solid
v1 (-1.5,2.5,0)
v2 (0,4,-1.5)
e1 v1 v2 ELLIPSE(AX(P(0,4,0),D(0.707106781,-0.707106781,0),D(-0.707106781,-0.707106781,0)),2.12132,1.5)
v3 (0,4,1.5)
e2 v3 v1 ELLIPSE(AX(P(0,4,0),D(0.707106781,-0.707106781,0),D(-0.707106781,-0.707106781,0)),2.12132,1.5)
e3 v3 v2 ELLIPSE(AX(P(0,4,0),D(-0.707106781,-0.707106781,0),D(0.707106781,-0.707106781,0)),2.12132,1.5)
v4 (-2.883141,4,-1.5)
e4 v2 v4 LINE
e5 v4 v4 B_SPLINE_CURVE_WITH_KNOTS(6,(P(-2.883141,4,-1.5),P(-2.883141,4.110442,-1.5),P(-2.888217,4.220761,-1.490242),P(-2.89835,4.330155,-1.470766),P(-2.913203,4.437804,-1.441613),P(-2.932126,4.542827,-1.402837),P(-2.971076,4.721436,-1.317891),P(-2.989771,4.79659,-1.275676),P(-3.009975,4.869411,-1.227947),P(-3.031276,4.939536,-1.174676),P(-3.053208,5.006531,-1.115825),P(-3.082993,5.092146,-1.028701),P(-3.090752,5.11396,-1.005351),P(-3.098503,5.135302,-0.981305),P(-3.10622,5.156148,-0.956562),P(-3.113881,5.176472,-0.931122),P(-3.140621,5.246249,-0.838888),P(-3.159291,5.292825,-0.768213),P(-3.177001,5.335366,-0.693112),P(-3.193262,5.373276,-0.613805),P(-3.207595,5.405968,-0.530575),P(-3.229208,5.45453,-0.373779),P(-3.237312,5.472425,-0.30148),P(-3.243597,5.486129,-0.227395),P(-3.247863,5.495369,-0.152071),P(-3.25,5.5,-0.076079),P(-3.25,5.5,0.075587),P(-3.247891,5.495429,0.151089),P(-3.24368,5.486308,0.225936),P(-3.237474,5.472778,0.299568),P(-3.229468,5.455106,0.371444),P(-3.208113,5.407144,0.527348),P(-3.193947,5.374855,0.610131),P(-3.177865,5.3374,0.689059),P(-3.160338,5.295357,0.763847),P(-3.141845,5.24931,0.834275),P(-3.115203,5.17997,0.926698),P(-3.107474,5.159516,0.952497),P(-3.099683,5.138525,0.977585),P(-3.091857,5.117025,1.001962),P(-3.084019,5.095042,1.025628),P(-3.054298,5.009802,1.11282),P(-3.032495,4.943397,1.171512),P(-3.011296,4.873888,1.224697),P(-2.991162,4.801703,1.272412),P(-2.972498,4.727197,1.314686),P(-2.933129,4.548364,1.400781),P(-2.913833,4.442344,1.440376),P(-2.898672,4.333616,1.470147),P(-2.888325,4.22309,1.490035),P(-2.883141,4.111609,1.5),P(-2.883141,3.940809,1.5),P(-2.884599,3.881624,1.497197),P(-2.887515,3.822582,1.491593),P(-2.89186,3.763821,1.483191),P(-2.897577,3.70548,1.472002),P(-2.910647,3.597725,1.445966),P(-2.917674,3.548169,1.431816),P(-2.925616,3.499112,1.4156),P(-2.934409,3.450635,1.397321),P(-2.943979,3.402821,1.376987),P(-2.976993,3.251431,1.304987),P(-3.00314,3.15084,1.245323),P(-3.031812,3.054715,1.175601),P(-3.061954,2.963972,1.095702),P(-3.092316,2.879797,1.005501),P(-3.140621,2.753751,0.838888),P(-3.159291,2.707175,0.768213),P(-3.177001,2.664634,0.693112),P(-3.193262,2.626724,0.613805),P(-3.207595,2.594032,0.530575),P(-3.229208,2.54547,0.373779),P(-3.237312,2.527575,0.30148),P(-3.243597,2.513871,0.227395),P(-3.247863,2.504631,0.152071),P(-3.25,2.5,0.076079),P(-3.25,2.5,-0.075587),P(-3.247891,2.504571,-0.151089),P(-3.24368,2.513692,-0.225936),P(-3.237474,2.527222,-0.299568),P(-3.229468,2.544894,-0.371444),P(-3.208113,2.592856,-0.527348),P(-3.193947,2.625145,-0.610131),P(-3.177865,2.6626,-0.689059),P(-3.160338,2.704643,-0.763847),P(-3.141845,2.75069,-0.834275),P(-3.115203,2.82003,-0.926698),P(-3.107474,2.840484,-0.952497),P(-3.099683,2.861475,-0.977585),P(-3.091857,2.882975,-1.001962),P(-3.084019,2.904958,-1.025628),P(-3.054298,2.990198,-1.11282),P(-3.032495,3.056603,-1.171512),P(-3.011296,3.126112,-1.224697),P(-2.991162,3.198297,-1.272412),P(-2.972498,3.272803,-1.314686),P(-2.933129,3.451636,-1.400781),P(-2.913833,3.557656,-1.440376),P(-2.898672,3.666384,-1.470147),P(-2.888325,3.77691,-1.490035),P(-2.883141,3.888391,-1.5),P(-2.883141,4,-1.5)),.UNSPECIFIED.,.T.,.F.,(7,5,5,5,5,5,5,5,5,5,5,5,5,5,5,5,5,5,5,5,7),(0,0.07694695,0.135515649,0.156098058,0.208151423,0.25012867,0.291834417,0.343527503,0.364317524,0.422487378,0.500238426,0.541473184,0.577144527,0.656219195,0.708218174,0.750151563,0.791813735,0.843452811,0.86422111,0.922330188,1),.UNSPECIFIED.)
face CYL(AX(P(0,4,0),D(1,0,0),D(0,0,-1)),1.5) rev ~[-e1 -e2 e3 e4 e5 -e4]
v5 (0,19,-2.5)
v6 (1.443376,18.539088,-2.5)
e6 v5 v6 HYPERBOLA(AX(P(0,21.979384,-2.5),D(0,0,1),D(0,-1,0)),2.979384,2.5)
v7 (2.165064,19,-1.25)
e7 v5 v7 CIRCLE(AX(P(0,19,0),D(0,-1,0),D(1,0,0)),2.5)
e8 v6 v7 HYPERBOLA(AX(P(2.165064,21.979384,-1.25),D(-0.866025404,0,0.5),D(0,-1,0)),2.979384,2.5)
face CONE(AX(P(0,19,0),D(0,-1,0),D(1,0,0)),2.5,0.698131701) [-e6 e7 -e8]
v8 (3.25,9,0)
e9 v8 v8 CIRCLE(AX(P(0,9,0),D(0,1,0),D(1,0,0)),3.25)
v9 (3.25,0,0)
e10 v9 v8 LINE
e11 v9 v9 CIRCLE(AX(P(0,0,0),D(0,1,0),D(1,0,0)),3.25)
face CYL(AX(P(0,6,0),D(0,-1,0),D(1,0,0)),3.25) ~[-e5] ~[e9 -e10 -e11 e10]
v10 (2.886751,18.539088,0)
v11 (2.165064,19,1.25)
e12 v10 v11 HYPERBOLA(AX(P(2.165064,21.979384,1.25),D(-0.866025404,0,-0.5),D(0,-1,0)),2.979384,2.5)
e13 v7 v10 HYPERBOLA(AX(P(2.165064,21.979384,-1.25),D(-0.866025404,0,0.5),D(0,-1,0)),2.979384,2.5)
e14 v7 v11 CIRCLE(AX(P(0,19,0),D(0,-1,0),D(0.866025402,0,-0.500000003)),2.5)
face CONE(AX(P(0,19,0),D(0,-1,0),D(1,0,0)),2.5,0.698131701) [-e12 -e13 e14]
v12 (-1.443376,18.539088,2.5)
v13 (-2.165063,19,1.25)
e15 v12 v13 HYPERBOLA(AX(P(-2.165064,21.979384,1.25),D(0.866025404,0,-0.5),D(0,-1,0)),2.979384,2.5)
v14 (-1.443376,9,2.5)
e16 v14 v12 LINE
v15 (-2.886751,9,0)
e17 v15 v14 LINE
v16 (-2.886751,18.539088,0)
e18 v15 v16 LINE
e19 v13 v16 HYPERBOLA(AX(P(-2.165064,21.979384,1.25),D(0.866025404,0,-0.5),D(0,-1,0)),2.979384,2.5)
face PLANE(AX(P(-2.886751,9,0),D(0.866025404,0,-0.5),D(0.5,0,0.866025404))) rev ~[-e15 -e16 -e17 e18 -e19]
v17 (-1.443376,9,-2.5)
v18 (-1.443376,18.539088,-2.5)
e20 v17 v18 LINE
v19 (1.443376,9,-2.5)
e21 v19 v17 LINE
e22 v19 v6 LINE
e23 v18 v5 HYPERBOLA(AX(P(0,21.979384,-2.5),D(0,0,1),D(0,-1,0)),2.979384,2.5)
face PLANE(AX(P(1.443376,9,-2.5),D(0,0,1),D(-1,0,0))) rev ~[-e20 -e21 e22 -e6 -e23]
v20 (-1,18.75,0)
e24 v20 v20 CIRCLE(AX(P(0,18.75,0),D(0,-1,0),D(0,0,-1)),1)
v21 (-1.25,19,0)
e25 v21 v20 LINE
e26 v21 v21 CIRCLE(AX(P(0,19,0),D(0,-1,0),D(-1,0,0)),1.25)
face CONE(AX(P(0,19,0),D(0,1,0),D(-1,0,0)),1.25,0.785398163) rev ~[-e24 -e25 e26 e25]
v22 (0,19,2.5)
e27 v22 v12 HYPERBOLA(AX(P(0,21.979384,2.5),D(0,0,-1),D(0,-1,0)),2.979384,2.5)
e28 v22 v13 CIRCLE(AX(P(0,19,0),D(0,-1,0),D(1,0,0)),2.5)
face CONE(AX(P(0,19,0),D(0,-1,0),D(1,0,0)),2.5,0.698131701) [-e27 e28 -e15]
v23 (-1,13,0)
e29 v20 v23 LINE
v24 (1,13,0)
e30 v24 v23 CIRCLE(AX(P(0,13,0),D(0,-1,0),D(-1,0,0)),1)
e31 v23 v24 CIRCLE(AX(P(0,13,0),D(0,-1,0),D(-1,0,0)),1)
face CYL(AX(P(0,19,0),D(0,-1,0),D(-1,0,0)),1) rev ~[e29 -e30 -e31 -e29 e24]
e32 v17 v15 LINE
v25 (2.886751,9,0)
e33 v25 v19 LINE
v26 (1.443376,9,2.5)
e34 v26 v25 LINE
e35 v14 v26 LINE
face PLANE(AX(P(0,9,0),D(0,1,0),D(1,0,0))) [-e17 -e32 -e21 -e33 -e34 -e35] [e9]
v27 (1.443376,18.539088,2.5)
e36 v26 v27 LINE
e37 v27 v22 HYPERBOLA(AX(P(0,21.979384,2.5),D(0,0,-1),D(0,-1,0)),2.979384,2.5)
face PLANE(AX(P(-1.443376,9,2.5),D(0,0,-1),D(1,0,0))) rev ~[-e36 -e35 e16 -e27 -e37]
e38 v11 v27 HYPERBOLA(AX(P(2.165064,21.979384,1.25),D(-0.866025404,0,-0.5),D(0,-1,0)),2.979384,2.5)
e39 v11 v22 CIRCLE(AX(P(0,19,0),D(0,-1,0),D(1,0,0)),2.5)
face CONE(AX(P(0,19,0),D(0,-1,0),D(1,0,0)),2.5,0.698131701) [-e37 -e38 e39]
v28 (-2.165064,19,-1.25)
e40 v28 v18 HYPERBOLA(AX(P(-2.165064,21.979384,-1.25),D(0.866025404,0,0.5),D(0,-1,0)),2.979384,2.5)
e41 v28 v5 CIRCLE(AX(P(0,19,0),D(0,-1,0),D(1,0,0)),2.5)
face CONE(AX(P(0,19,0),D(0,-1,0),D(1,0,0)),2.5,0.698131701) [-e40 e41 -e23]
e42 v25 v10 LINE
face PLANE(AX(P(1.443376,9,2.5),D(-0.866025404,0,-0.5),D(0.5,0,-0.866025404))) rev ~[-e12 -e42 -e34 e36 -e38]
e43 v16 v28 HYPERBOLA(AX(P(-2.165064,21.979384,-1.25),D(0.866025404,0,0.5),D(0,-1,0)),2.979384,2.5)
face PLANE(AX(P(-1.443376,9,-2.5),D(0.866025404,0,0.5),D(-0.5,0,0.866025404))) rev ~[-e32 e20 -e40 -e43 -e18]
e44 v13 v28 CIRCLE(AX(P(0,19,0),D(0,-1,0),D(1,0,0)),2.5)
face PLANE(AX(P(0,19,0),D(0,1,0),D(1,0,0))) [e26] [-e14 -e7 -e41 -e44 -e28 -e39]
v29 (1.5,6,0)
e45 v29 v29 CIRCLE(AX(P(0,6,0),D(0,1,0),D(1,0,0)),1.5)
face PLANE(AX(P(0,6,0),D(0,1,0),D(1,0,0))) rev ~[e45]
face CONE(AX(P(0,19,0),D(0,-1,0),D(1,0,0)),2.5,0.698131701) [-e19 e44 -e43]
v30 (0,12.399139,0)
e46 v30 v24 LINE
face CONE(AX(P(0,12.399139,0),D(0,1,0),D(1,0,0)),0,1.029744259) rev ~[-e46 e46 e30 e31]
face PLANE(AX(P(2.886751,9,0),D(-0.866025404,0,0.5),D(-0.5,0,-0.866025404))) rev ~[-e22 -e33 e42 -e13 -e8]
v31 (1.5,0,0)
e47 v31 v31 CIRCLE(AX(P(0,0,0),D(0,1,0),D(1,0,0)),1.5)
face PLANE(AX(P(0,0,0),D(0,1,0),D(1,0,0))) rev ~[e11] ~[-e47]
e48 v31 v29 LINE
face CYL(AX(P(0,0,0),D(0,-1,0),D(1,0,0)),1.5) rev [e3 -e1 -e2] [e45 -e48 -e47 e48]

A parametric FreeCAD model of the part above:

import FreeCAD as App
import Part
import Sketcher
Q = App.Units.Quantity

doc = App.newDocument("Part")
body = doc.addObject("PartDesign::Body", "Body")

sketch1 = body.newObject("Sketcher::SketchObject", "Sketch")
sketch1.AttachmentSupport = (doc.getObject("XZ_Plane"), [""])
sketch1.MapMode = "FlatFace"
sketch1.addGeometry([
    Part.Circle(App.Vector(0, 0, 0), App.Vector(0, 0, 1), 3.25),
    Part.Circle(App.Vector(0, 0, 0), App.Vector(0, 0, 1), 1.5),
], False)
sketch1.addConstraint([
    Sketcher.Constraint("Coincident", 0, 3, -1, 1),
    Sketcher.Constraint("Coincident", 1, 3, -1, 1),
    Sketcher.Constraint("Diameter", 1, Q("3 mm")),
    Sketcher.Constraint("Diameter", 0, Q("6.5 mm")),
])
pad1 = body.newObject("PartDesign::Pad", "Pad")
pad1.Profile = sketch1
pad1.Length = 6
pad1.Reversed = True

sketch2 = body.newObject("Sketcher::SketchObject", "Sketch001")
sketch2.AttachmentSupport = (doc.getObject("XZ_Plane"), [""])
sketch2.MapMode = "FlatFace"
sketch2.AttachmentOffset = App.Placement(App.Vector(0, 0, -6), App.Rotation())
sketch2.addGeometry(Part.Circle(App.Vector(0, 0, 0), App.Vector(0, 0, 1), 3.25), False)
sketch2.addConstraint([
    Sketcher.Constraint("Coincident", 0, 3, -1, 1),
    Sketcher.Constraint("Diameter", 0, Q("6.5 mm")),
])
pad2 = body.newObject("PartDesign::Pad", "Pad001")
pad2.Profile = sketch2
pad2.Length = 3
pad2.Reversed = True

sketch3 = body.newObject("Sketcher::SketchObject", "Sketch002")
sketch3.AttachmentSupport = (doc.getObject("XZ_Plane"), [""])
sketch3.MapMode = "FlatFace"
sketch3.AttachmentOffset = App.Placement(App.Vector(0, 0, -9), App.Rotation())
sketch3.addGeometry([
    Part.LineSegment(App.Vector(2.886751, 0, 0), App.Vector(1.443376, -2.5, 0)),
    Part.LineSegment(App.Vector(1.443376, -2.5, 0), App.Vector(-1.443376, -2.5, 0)),
    Part.LineSegment(App.Vector(-1.443376, -2.5, 0), App.Vector(-2.886751, 0, 0)),
    Part.LineSegment(App.Vector(-2.886751, 0, 0), App.Vector(-1.443376, 2.5, 0)),
    Part.LineSegment(App.Vector(-1.443376, 2.5, 0), App.Vector(1.443376, 2.5, 0)),
    Part.LineSegment(App.Vector(1.443376, 2.5, 0), App.Vector(2.886751, 0, 0)),
], False)
sketch3.addConstraint([
    Sketcher.Constraint("Coincident", 0, 2, 1, 1),
    Sketcher.Constraint("Coincident", 1, 2, 2, 1),
    Sketcher.Constraint("Coincident", 2, 2, 3, 1),
    Sketcher.Constraint("Coincident", 3, 2, 4, 1),
    Sketcher.Constraint("Coincident", 4, 2, 5, 1),
    Sketcher.Constraint("Coincident", 5, 2, 0, 1),
    Sketcher.Constraint("Horizontal", 1),
    Sketcher.Constraint("Horizontal", 4),
    Sketcher.Constraint("Symmetric", 0, 2, 3, 2, -1, 1),
    Sketcher.Constraint("Symmetric", 2, 2, 5, 2, -1, 1),
    Sketcher.Constraint("PointOnObject", 2, 2, -1),
    Sketcher.Constraint("Parallel", 2, 5),
    Sketcher.Constraint("Vertical", 1, 2, 3, 2),
    Sketcher.Constraint("Angle", 0, Q("-120 deg")),
    Sketcher.Constraint("DistanceY", 1, 2, 3, 2, Q("5 mm")),
    Sketcher.Constraint("DistanceX", 1, 2, 1, 1, Q("2.886751 mm")),
])
pad3 = body.newObject("PartDesign::Pad", "Pad002")
pad3.Profile = sketch3
pad3.Length = 10
pad3.Reversed = True

sketch4 = body.newObject("Sketcher::SketchObject", "Sketch003")
sketch4.AttachmentSupport = (doc.getObject("XZ_Plane"), [""])
sketch4.MapMode = "FlatFace"
sketch4.AttachmentOffset = App.Placement(App.Vector(0, 0, -19), App.Rotation())
sketch4.addGeometry([
    Part.LineSegment(App.Vector(-14.752, -14.752, 0), App.Vector(-14.752, 14.752, 0)),
    Part.LineSegment(App.Vector(-14.752, 14.752, 0), App.Vector(14.752, 14.752, 0)),
    Part.LineSegment(App.Vector(14.752, 14.752, 0), App.Vector(14.752, -14.752, 0)),
    Part.LineSegment(App.Vector(14.752, -14.752, 0), App.Vector(-14.752, -14.752, 0)),
    Part.Circle(App.Vector(0, 0, 0), App.Vector(0, 0, 1), 2.5),
], False)
sketch4.addConstraint([
    Sketcher.Constraint("Coincident", 0, 2, 1, 1),
    Sketcher.Constraint("Coincident", 1, 2, 2, 1),
    Sketcher.Constraint("Coincident", 2, 2, 3, 1),
    Sketcher.Constraint("Coincident", 3, 2, 0, 1),
    Sketcher.Constraint("Vertical", 0),
    Sketcher.Constraint("Horizontal", 1),
    Sketcher.Constraint("Vertical", 2),
    Sketcher.Constraint("Horizontal", 3),
    Sketcher.Constraint("Coincident", 4, 3, -1, 1),
    Sketcher.Constraint("Symmetric", 0, 2, 2, 2, -1, 1),
    Sketcher.Constraint("Equal", 3, 0),
    Sketcher.Constraint("Diameter", 4, Q("5 mm")),
    Sketcher.Constraint("DistanceX", 1, 1, 1, 2, Q("29.504 mm")),
])
pocket1 = body.newObject("PartDesign::Pocket", "Pocket")
pocket1.Profile = sketch4
pocket1.Length = 10
pocket1.Reversed = True
pocket1.TaperAngle = 40

sketch5 = body.newObject("Sketcher::SketchObject", "Sketch004")
sketch5.AttachmentSupport = (doc.getObject("XZ_Plane"), [""])
sketch5.MapMode = "FlatFace"
sketch5.AttachmentOffset = App.Placement(App.Vector(0, 0, -19), App.Rotation())
sketch5.addGeometry(Part.Circle(App.Vector(0, 0, 0), App.Vector(0, 0, 1), 1), False)
sketch5.addConstraint([
    Sketcher.Constraint("Coincident", 0, 3, -1, 1),
    Sketcher.Constraint("Diameter", 0, Q("2 mm")),
])
doc.recompute()
hole = body.newObject("PartDesign::Hole", "Hole")
hole.Profile = sketch5
hole.ThreadType = "None"
hole.Diameter = 2
hole.DepthType = "Dimension"
hole.Depth = 6
hole.DrillPoint = "Angled"
hole.DrillPointAngle = 118
hole.HoleCutType = "Countersink"
hole.HoleCutDiameter = 2.5
hole.HoleCutCountersinkAngle = 90
hole.Reversed = True

sketch6 = body.newObject("Sketcher::SketchObject", "Sketch005")
sketch6.AttachmentSupport = (doc.getObject("YZ_Plane"), [""])
sketch6.MapMode = "FlatFace"
sketch6.addGeometry(Part.Circle(App.Vector(4, 0, 0), App.Vector(0, 0, 1), 1.5), False)
sketch6.addConstraint([
    Sketcher.Constraint("PointOnObject", 0, 3, -1),
    Sketcher.Constraint("Diameter", 0, Q("3 mm")),
    Sketcher.Constraint("DistanceX", -1, 1, 0, 3, Q("4 mm")),
])
pocket2 = body.newObject("PartDesign::Pocket", "Pocket001")
pocket2.Profile = sketch6
pocket2.Type = "ThroughAll"

doc.recompute()
